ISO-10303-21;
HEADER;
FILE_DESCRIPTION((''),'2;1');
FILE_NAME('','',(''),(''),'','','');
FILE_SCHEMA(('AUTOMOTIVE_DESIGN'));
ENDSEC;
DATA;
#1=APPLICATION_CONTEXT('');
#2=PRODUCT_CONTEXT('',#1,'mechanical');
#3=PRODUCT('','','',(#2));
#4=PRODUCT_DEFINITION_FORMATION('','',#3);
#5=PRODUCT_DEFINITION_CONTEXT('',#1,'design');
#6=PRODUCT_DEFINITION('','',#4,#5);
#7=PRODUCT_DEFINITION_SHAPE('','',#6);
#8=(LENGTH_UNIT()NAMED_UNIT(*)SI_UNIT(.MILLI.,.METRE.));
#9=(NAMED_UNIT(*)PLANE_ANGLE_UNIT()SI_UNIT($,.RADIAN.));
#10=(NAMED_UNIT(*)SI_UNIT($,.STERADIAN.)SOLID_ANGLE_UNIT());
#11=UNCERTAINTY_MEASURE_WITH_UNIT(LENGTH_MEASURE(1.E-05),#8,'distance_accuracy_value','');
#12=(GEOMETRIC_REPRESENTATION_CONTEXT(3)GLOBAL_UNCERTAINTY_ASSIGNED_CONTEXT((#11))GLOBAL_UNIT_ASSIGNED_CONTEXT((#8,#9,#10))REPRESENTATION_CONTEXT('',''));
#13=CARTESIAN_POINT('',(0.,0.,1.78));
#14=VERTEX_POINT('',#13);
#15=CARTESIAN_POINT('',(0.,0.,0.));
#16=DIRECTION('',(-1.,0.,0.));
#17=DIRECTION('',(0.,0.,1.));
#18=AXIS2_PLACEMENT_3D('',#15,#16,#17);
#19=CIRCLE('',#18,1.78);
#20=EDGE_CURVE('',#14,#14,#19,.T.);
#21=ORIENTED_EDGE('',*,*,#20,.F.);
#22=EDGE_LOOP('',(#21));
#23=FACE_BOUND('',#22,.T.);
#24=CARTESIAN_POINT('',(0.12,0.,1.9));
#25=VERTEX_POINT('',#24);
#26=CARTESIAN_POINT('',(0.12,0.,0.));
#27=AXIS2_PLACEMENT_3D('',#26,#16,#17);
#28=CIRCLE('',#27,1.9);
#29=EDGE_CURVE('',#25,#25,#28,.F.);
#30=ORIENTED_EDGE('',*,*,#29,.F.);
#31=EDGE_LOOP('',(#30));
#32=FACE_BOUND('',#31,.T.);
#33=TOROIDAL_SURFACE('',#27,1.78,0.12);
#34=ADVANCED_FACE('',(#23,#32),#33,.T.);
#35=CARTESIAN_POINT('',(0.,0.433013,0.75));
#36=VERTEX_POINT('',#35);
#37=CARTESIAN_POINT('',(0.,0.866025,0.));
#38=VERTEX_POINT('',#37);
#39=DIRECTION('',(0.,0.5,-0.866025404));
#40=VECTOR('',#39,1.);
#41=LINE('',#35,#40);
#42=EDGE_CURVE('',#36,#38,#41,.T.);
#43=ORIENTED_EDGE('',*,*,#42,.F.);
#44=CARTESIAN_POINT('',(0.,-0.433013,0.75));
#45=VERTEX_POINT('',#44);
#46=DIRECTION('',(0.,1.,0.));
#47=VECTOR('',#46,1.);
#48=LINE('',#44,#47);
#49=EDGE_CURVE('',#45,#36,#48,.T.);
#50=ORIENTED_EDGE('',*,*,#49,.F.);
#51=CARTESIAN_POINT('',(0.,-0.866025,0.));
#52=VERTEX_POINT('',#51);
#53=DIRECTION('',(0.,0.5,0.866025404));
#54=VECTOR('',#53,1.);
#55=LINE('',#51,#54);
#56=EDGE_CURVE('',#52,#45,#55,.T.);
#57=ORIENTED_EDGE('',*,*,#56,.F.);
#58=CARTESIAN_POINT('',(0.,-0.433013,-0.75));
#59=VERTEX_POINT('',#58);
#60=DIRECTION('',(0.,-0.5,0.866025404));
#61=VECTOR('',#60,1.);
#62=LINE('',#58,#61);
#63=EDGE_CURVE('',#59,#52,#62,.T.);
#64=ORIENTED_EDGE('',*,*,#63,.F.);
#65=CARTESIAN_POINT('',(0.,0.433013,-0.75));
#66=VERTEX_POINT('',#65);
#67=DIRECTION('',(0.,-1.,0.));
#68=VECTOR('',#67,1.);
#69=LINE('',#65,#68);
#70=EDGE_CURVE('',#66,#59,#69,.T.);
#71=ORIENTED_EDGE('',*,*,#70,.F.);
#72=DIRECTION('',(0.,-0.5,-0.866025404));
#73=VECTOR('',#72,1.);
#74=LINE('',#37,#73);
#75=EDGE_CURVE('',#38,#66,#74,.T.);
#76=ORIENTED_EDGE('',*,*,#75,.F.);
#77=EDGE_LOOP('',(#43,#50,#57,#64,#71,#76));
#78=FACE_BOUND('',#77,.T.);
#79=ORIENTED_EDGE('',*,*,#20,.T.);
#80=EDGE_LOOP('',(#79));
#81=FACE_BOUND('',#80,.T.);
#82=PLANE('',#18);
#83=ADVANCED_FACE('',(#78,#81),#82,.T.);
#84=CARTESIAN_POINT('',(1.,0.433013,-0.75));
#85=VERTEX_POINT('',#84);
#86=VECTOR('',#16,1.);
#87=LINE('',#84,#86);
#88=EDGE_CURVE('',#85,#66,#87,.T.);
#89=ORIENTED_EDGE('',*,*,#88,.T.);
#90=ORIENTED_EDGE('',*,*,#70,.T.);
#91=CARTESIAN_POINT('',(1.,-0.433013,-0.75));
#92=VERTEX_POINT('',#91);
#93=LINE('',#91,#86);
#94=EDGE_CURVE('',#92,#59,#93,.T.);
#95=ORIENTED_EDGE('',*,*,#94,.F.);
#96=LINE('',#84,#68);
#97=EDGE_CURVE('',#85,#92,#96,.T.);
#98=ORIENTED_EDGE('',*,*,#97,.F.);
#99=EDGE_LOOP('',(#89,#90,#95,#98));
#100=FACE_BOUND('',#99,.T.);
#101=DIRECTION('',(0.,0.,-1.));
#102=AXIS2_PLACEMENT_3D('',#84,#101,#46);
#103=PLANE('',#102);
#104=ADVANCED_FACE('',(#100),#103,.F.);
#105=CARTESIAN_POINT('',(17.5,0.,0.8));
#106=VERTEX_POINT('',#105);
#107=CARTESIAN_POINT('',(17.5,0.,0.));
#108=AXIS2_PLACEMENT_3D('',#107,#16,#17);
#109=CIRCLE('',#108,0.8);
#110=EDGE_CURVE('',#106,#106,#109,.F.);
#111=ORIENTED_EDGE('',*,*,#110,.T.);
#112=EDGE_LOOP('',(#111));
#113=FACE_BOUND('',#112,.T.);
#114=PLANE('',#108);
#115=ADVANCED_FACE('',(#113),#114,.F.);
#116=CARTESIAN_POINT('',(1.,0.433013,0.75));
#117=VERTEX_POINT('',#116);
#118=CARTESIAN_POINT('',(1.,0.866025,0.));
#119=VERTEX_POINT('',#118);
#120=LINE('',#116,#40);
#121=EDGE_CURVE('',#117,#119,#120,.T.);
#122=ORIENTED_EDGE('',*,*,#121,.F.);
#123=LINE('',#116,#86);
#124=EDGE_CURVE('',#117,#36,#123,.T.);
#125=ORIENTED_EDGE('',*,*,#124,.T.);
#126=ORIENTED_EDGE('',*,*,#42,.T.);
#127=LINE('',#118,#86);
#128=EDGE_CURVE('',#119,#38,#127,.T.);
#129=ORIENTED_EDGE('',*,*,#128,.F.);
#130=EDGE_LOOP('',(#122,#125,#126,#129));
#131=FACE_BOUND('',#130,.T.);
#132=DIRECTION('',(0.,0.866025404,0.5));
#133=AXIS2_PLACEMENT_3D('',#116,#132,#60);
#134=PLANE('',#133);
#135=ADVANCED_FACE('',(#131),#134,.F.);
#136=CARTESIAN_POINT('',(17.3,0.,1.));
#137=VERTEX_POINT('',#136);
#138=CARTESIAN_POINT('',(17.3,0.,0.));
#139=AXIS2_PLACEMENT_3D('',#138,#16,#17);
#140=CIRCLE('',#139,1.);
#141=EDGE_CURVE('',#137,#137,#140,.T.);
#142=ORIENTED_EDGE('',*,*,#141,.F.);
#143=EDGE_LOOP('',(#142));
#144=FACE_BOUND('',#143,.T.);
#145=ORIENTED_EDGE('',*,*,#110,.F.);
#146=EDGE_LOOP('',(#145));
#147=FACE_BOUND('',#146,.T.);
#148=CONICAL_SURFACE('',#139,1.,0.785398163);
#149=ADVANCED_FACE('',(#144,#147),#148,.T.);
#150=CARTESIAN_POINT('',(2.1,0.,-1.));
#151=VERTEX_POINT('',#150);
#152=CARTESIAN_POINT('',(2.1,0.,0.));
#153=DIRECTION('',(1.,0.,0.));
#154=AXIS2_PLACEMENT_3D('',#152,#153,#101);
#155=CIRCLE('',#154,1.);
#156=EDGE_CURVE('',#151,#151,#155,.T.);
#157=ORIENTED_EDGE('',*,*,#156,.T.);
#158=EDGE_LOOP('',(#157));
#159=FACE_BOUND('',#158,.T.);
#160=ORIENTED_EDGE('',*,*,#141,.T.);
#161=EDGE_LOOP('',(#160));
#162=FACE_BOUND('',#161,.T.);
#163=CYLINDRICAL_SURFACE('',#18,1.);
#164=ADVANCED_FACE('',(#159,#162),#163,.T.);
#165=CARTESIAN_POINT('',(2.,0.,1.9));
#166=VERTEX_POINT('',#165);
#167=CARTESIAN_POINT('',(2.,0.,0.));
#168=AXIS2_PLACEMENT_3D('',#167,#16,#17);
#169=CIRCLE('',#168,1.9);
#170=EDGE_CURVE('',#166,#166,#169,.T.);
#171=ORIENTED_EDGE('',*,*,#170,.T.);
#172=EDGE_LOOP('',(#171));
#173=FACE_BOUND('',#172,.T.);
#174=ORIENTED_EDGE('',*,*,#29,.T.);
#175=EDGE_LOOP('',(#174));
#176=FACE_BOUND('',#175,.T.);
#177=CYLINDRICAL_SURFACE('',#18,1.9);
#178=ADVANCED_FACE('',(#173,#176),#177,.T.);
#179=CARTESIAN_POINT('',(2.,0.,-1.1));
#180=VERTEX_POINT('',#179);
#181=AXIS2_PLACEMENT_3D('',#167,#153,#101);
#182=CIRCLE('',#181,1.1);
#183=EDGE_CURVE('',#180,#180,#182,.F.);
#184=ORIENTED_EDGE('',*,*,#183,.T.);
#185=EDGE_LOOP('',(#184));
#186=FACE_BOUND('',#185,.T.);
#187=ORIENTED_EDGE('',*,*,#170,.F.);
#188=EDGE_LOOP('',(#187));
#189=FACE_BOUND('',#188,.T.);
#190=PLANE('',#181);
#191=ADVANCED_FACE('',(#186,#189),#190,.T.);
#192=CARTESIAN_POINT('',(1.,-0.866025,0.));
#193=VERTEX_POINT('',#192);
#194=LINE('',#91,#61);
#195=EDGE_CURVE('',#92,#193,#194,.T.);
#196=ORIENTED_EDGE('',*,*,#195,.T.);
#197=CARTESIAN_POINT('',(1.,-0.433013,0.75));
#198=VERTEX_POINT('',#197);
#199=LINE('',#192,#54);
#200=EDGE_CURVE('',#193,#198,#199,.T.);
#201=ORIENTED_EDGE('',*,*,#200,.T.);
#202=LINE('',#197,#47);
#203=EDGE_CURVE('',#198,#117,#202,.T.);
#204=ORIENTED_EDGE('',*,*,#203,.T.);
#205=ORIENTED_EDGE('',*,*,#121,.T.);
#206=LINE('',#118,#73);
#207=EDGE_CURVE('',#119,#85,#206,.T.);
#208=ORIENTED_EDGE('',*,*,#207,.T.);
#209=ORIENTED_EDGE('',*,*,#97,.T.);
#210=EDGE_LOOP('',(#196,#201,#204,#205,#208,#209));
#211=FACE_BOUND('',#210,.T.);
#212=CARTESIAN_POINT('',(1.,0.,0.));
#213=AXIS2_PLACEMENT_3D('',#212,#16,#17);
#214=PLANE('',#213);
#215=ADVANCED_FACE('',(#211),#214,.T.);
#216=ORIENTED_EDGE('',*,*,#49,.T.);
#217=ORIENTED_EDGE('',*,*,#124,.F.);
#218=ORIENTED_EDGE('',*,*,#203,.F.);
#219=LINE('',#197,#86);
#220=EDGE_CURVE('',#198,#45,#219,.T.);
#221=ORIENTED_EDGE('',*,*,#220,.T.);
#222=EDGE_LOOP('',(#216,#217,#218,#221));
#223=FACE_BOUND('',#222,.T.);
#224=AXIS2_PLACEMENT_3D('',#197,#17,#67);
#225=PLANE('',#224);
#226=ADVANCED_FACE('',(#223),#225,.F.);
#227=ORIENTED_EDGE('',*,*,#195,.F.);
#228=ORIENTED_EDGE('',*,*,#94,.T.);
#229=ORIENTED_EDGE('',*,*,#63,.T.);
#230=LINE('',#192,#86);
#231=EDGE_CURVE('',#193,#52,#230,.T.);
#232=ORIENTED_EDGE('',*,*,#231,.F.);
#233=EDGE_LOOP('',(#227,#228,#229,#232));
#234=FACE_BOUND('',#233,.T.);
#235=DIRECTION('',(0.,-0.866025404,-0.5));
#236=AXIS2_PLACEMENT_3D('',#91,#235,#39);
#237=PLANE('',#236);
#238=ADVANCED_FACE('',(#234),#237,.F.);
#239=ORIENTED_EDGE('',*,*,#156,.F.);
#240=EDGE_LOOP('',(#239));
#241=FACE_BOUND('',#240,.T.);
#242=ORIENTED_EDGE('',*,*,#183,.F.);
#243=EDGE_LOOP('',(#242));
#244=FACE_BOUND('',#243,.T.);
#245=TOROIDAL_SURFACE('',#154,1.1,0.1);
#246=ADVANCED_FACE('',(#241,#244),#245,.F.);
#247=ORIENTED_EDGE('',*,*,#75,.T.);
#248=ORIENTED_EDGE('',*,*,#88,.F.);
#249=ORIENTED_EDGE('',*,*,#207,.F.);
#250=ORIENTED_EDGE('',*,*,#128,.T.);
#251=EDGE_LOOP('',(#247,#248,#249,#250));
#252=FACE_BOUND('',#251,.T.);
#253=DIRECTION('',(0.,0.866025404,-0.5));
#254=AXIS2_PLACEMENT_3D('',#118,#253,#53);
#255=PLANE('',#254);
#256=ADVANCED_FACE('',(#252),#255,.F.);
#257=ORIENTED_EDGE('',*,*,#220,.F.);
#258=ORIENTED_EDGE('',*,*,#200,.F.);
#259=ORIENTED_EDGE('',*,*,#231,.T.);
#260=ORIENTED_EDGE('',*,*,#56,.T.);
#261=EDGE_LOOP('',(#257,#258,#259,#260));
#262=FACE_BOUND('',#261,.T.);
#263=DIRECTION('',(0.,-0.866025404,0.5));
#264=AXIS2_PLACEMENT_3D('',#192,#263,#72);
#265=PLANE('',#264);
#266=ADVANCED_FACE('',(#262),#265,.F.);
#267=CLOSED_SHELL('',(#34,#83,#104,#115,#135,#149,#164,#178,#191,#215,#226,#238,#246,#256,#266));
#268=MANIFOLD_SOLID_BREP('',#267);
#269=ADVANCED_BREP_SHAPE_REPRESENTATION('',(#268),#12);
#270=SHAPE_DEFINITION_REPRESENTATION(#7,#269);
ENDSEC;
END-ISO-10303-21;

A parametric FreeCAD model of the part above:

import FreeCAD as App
import Part
import Sketcher
Q = App.Units.Quantity


def edges_at(feature, points):
    """Names of the edges that pass closest to the given points."""
    edges = feature.Shape.Edges
    near = lambda p: min(range(len(edges)), key=lambda i: edges[i].distToShape(Part.Vertex(*p))[0])
    return sorted({f"Edge{near(p) + 1}" for p in points})


def add_polygon(sketch, points):
    """Adds a closed chain of lines whose ends are joined by coincident constraints."""
    first, n = sketch.GeometryCount, len(points)
    for a, b in zip(points, points[1:] + points[:1]):
        sketch.addGeometry(Part.LineSegment(App.Vector(*a, 0), App.Vector(*b, 0)), False)
    for i in range(n):
        sketch.addConstraint(Sketcher.Constraint("Coincident", first + i, 2, first + (i + 1) % n, 1))

doc = App.newDocument("Part")
params = doc.addObject("Spreadsheet::Sheet", "Params")
for row, (alias, value) in enumerate([
    ("sketch1_width", "2 mm"),
    ("sketch1_height", "1 mm"),
    ("sketch1_width2", "15.5 mm"),
    ("sketch1_height2", "0.9 mm"),
    ("revolution_angle", "360 deg"),
    ("fillet_radius", "0.1 mm"),
    ("fillet2_radius", "0.12 mm"),
    ("chamfer_size", "0.2 mm"),
    ("pocket1_length", "1 mm"),
], start=1):
    params.set(f"A{row}", alias)
    params.set(f"B{row}", "=" + value)
    params.setAlias(f"B{row}", alias)

body = doc.addObject("PartDesign::Body", "Body")

# Sketch on XY plane
sketch1 = doc.addObject("Sketcher::SketchObject", "Sketch")
body.addObject(sketch1)
sketch1.AttachmentSupport = (doc.XY_Plane, [""])
sketch1.MapMode = "FlatFace"
add_polygon(sketch1, [(17.5, 0), (17.5, 1), (2, 1), (2, 1.9), (0, 1.9), (0, 0)])  # lines 0-5
sketch1.addConstraint([
    Sketcher.Constraint("Vertical", 0),
    Sketcher.Constraint("Horizontal", 1),
    Sketcher.Constraint("Vertical", 2),
    Sketcher.Constraint("Horizontal", 3),
    Sketcher.Constraint("Vertical", 4),
    Sketcher.Constraint("Horizontal", 5),
    Sketcher.Constraint("Coincident", 4, 2, -1, 1),
    Sketcher.Constraint("DistanceX", 3, 2, 3, 1, 2.0),
    Sketcher.Constraint("DistanceY", 0, 1, 0, 2, 1.0),
    Sketcher.Constraint("DistanceX", 1, 2, 1, 1, 15.5),
    Sketcher.Constraint("DistanceY", 2, 1, 2, 2, 0.9),
])
sketch1.setExpression("Constraints[13]", "Params.sketch1_width")
sketch1.setExpression("Constraints[14]", "Params.sketch1_height")
sketch1.setExpression("Constraints[15]", "Params.sketch1_width2")
sketch1.setExpression("Constraints[16]", "Params.sketch1_height2")
revolution = doc.addObject("PartDesign::Revolution", "Revolution")
body.addObject(revolution)
revolution.Profile = sketch1
revolution.ReferenceAxis = (sketch1, ["H_Axis"])
revolution.setExpression("Angle", "Params.revolution_angle")
doc.recompute()

fillet = doc.addObject("PartDesign::Fillet", "Fillet")
body.addObject(fillet)
fillet.Base = (revolution, edges_at(revolution, [(2, 0, -1)]))
fillet.setExpression("Radius", "Params.fillet_radius")
doc.recompute()

fillet2 = doc.addObject("PartDesign::Fillet", "Fillet001")
body.addObject(fillet2)
fillet2.Base = (fillet, edges_at(fillet, [(0, 0, -1.9)]))
fillet2.setExpression("Radius", "Params.fillet2_radius")
doc.recompute()

chamfer = doc.addObject("PartDesign::Chamfer", "Chamfer")
body.addObject(chamfer)
chamfer.Base = (fillet2, edges_at(fillet2, [(17.5, 0, -1)]))
chamfer.setExpression("Size", "Params.chamfer_size")

# Sketch on YZ plane
sketch2 = doc.addObject("Sketcher::SketchObject", "Sketch001")
body.addObject(sketch2)
sketch2.AttachmentSupport = (doc.YZ_Plane, [""])
sketch2.MapMode = "FlatFace"
add_polygon(sketch2, [(0.866025, 0), (0.433013, -0.75), (-0.433013, -0.75), (-0.866025, 0), (-0.433013, 0.75), (0.433013, 0.75)])  # lines 0-5
sketch2.addConstraint([
    Sketcher.Constraint("Horizontal", 1),
    Sketcher.Constraint("Horizontal", 4),
    Sketcher.Constraint("Symmetric", 0, 2, 3, 2, -1, 1),
    Sketcher.Constraint("Symmetric", 2, 2, 5, 2, -1, 1),
    Sketcher.Constraint("PointOnObject", 2, 2, -1),
    Sketcher.Constraint("Parallel", 2, 5),
    Sketcher.Constraint("Vertical", 1, 2, 3, 2),
    Sketcher.Constraint("Angle", 0, Q("-120 deg")),
    Sketcher.Constraint("DistanceY", 1, 2, 3, 2, 1.5),
    Sketcher.Constraint("DistanceX", 1, 2, 1, 1, 0.866025),
])
pocket1 = doc.addObject("PartDesign::Pocket", "Pocket")
body.addObject(pocket1)
pocket1.Profile = sketch2
pocket1.setExpression("Length", "Params.pocket1_length")
pocket1.Reversed = True

doc.recompute()
